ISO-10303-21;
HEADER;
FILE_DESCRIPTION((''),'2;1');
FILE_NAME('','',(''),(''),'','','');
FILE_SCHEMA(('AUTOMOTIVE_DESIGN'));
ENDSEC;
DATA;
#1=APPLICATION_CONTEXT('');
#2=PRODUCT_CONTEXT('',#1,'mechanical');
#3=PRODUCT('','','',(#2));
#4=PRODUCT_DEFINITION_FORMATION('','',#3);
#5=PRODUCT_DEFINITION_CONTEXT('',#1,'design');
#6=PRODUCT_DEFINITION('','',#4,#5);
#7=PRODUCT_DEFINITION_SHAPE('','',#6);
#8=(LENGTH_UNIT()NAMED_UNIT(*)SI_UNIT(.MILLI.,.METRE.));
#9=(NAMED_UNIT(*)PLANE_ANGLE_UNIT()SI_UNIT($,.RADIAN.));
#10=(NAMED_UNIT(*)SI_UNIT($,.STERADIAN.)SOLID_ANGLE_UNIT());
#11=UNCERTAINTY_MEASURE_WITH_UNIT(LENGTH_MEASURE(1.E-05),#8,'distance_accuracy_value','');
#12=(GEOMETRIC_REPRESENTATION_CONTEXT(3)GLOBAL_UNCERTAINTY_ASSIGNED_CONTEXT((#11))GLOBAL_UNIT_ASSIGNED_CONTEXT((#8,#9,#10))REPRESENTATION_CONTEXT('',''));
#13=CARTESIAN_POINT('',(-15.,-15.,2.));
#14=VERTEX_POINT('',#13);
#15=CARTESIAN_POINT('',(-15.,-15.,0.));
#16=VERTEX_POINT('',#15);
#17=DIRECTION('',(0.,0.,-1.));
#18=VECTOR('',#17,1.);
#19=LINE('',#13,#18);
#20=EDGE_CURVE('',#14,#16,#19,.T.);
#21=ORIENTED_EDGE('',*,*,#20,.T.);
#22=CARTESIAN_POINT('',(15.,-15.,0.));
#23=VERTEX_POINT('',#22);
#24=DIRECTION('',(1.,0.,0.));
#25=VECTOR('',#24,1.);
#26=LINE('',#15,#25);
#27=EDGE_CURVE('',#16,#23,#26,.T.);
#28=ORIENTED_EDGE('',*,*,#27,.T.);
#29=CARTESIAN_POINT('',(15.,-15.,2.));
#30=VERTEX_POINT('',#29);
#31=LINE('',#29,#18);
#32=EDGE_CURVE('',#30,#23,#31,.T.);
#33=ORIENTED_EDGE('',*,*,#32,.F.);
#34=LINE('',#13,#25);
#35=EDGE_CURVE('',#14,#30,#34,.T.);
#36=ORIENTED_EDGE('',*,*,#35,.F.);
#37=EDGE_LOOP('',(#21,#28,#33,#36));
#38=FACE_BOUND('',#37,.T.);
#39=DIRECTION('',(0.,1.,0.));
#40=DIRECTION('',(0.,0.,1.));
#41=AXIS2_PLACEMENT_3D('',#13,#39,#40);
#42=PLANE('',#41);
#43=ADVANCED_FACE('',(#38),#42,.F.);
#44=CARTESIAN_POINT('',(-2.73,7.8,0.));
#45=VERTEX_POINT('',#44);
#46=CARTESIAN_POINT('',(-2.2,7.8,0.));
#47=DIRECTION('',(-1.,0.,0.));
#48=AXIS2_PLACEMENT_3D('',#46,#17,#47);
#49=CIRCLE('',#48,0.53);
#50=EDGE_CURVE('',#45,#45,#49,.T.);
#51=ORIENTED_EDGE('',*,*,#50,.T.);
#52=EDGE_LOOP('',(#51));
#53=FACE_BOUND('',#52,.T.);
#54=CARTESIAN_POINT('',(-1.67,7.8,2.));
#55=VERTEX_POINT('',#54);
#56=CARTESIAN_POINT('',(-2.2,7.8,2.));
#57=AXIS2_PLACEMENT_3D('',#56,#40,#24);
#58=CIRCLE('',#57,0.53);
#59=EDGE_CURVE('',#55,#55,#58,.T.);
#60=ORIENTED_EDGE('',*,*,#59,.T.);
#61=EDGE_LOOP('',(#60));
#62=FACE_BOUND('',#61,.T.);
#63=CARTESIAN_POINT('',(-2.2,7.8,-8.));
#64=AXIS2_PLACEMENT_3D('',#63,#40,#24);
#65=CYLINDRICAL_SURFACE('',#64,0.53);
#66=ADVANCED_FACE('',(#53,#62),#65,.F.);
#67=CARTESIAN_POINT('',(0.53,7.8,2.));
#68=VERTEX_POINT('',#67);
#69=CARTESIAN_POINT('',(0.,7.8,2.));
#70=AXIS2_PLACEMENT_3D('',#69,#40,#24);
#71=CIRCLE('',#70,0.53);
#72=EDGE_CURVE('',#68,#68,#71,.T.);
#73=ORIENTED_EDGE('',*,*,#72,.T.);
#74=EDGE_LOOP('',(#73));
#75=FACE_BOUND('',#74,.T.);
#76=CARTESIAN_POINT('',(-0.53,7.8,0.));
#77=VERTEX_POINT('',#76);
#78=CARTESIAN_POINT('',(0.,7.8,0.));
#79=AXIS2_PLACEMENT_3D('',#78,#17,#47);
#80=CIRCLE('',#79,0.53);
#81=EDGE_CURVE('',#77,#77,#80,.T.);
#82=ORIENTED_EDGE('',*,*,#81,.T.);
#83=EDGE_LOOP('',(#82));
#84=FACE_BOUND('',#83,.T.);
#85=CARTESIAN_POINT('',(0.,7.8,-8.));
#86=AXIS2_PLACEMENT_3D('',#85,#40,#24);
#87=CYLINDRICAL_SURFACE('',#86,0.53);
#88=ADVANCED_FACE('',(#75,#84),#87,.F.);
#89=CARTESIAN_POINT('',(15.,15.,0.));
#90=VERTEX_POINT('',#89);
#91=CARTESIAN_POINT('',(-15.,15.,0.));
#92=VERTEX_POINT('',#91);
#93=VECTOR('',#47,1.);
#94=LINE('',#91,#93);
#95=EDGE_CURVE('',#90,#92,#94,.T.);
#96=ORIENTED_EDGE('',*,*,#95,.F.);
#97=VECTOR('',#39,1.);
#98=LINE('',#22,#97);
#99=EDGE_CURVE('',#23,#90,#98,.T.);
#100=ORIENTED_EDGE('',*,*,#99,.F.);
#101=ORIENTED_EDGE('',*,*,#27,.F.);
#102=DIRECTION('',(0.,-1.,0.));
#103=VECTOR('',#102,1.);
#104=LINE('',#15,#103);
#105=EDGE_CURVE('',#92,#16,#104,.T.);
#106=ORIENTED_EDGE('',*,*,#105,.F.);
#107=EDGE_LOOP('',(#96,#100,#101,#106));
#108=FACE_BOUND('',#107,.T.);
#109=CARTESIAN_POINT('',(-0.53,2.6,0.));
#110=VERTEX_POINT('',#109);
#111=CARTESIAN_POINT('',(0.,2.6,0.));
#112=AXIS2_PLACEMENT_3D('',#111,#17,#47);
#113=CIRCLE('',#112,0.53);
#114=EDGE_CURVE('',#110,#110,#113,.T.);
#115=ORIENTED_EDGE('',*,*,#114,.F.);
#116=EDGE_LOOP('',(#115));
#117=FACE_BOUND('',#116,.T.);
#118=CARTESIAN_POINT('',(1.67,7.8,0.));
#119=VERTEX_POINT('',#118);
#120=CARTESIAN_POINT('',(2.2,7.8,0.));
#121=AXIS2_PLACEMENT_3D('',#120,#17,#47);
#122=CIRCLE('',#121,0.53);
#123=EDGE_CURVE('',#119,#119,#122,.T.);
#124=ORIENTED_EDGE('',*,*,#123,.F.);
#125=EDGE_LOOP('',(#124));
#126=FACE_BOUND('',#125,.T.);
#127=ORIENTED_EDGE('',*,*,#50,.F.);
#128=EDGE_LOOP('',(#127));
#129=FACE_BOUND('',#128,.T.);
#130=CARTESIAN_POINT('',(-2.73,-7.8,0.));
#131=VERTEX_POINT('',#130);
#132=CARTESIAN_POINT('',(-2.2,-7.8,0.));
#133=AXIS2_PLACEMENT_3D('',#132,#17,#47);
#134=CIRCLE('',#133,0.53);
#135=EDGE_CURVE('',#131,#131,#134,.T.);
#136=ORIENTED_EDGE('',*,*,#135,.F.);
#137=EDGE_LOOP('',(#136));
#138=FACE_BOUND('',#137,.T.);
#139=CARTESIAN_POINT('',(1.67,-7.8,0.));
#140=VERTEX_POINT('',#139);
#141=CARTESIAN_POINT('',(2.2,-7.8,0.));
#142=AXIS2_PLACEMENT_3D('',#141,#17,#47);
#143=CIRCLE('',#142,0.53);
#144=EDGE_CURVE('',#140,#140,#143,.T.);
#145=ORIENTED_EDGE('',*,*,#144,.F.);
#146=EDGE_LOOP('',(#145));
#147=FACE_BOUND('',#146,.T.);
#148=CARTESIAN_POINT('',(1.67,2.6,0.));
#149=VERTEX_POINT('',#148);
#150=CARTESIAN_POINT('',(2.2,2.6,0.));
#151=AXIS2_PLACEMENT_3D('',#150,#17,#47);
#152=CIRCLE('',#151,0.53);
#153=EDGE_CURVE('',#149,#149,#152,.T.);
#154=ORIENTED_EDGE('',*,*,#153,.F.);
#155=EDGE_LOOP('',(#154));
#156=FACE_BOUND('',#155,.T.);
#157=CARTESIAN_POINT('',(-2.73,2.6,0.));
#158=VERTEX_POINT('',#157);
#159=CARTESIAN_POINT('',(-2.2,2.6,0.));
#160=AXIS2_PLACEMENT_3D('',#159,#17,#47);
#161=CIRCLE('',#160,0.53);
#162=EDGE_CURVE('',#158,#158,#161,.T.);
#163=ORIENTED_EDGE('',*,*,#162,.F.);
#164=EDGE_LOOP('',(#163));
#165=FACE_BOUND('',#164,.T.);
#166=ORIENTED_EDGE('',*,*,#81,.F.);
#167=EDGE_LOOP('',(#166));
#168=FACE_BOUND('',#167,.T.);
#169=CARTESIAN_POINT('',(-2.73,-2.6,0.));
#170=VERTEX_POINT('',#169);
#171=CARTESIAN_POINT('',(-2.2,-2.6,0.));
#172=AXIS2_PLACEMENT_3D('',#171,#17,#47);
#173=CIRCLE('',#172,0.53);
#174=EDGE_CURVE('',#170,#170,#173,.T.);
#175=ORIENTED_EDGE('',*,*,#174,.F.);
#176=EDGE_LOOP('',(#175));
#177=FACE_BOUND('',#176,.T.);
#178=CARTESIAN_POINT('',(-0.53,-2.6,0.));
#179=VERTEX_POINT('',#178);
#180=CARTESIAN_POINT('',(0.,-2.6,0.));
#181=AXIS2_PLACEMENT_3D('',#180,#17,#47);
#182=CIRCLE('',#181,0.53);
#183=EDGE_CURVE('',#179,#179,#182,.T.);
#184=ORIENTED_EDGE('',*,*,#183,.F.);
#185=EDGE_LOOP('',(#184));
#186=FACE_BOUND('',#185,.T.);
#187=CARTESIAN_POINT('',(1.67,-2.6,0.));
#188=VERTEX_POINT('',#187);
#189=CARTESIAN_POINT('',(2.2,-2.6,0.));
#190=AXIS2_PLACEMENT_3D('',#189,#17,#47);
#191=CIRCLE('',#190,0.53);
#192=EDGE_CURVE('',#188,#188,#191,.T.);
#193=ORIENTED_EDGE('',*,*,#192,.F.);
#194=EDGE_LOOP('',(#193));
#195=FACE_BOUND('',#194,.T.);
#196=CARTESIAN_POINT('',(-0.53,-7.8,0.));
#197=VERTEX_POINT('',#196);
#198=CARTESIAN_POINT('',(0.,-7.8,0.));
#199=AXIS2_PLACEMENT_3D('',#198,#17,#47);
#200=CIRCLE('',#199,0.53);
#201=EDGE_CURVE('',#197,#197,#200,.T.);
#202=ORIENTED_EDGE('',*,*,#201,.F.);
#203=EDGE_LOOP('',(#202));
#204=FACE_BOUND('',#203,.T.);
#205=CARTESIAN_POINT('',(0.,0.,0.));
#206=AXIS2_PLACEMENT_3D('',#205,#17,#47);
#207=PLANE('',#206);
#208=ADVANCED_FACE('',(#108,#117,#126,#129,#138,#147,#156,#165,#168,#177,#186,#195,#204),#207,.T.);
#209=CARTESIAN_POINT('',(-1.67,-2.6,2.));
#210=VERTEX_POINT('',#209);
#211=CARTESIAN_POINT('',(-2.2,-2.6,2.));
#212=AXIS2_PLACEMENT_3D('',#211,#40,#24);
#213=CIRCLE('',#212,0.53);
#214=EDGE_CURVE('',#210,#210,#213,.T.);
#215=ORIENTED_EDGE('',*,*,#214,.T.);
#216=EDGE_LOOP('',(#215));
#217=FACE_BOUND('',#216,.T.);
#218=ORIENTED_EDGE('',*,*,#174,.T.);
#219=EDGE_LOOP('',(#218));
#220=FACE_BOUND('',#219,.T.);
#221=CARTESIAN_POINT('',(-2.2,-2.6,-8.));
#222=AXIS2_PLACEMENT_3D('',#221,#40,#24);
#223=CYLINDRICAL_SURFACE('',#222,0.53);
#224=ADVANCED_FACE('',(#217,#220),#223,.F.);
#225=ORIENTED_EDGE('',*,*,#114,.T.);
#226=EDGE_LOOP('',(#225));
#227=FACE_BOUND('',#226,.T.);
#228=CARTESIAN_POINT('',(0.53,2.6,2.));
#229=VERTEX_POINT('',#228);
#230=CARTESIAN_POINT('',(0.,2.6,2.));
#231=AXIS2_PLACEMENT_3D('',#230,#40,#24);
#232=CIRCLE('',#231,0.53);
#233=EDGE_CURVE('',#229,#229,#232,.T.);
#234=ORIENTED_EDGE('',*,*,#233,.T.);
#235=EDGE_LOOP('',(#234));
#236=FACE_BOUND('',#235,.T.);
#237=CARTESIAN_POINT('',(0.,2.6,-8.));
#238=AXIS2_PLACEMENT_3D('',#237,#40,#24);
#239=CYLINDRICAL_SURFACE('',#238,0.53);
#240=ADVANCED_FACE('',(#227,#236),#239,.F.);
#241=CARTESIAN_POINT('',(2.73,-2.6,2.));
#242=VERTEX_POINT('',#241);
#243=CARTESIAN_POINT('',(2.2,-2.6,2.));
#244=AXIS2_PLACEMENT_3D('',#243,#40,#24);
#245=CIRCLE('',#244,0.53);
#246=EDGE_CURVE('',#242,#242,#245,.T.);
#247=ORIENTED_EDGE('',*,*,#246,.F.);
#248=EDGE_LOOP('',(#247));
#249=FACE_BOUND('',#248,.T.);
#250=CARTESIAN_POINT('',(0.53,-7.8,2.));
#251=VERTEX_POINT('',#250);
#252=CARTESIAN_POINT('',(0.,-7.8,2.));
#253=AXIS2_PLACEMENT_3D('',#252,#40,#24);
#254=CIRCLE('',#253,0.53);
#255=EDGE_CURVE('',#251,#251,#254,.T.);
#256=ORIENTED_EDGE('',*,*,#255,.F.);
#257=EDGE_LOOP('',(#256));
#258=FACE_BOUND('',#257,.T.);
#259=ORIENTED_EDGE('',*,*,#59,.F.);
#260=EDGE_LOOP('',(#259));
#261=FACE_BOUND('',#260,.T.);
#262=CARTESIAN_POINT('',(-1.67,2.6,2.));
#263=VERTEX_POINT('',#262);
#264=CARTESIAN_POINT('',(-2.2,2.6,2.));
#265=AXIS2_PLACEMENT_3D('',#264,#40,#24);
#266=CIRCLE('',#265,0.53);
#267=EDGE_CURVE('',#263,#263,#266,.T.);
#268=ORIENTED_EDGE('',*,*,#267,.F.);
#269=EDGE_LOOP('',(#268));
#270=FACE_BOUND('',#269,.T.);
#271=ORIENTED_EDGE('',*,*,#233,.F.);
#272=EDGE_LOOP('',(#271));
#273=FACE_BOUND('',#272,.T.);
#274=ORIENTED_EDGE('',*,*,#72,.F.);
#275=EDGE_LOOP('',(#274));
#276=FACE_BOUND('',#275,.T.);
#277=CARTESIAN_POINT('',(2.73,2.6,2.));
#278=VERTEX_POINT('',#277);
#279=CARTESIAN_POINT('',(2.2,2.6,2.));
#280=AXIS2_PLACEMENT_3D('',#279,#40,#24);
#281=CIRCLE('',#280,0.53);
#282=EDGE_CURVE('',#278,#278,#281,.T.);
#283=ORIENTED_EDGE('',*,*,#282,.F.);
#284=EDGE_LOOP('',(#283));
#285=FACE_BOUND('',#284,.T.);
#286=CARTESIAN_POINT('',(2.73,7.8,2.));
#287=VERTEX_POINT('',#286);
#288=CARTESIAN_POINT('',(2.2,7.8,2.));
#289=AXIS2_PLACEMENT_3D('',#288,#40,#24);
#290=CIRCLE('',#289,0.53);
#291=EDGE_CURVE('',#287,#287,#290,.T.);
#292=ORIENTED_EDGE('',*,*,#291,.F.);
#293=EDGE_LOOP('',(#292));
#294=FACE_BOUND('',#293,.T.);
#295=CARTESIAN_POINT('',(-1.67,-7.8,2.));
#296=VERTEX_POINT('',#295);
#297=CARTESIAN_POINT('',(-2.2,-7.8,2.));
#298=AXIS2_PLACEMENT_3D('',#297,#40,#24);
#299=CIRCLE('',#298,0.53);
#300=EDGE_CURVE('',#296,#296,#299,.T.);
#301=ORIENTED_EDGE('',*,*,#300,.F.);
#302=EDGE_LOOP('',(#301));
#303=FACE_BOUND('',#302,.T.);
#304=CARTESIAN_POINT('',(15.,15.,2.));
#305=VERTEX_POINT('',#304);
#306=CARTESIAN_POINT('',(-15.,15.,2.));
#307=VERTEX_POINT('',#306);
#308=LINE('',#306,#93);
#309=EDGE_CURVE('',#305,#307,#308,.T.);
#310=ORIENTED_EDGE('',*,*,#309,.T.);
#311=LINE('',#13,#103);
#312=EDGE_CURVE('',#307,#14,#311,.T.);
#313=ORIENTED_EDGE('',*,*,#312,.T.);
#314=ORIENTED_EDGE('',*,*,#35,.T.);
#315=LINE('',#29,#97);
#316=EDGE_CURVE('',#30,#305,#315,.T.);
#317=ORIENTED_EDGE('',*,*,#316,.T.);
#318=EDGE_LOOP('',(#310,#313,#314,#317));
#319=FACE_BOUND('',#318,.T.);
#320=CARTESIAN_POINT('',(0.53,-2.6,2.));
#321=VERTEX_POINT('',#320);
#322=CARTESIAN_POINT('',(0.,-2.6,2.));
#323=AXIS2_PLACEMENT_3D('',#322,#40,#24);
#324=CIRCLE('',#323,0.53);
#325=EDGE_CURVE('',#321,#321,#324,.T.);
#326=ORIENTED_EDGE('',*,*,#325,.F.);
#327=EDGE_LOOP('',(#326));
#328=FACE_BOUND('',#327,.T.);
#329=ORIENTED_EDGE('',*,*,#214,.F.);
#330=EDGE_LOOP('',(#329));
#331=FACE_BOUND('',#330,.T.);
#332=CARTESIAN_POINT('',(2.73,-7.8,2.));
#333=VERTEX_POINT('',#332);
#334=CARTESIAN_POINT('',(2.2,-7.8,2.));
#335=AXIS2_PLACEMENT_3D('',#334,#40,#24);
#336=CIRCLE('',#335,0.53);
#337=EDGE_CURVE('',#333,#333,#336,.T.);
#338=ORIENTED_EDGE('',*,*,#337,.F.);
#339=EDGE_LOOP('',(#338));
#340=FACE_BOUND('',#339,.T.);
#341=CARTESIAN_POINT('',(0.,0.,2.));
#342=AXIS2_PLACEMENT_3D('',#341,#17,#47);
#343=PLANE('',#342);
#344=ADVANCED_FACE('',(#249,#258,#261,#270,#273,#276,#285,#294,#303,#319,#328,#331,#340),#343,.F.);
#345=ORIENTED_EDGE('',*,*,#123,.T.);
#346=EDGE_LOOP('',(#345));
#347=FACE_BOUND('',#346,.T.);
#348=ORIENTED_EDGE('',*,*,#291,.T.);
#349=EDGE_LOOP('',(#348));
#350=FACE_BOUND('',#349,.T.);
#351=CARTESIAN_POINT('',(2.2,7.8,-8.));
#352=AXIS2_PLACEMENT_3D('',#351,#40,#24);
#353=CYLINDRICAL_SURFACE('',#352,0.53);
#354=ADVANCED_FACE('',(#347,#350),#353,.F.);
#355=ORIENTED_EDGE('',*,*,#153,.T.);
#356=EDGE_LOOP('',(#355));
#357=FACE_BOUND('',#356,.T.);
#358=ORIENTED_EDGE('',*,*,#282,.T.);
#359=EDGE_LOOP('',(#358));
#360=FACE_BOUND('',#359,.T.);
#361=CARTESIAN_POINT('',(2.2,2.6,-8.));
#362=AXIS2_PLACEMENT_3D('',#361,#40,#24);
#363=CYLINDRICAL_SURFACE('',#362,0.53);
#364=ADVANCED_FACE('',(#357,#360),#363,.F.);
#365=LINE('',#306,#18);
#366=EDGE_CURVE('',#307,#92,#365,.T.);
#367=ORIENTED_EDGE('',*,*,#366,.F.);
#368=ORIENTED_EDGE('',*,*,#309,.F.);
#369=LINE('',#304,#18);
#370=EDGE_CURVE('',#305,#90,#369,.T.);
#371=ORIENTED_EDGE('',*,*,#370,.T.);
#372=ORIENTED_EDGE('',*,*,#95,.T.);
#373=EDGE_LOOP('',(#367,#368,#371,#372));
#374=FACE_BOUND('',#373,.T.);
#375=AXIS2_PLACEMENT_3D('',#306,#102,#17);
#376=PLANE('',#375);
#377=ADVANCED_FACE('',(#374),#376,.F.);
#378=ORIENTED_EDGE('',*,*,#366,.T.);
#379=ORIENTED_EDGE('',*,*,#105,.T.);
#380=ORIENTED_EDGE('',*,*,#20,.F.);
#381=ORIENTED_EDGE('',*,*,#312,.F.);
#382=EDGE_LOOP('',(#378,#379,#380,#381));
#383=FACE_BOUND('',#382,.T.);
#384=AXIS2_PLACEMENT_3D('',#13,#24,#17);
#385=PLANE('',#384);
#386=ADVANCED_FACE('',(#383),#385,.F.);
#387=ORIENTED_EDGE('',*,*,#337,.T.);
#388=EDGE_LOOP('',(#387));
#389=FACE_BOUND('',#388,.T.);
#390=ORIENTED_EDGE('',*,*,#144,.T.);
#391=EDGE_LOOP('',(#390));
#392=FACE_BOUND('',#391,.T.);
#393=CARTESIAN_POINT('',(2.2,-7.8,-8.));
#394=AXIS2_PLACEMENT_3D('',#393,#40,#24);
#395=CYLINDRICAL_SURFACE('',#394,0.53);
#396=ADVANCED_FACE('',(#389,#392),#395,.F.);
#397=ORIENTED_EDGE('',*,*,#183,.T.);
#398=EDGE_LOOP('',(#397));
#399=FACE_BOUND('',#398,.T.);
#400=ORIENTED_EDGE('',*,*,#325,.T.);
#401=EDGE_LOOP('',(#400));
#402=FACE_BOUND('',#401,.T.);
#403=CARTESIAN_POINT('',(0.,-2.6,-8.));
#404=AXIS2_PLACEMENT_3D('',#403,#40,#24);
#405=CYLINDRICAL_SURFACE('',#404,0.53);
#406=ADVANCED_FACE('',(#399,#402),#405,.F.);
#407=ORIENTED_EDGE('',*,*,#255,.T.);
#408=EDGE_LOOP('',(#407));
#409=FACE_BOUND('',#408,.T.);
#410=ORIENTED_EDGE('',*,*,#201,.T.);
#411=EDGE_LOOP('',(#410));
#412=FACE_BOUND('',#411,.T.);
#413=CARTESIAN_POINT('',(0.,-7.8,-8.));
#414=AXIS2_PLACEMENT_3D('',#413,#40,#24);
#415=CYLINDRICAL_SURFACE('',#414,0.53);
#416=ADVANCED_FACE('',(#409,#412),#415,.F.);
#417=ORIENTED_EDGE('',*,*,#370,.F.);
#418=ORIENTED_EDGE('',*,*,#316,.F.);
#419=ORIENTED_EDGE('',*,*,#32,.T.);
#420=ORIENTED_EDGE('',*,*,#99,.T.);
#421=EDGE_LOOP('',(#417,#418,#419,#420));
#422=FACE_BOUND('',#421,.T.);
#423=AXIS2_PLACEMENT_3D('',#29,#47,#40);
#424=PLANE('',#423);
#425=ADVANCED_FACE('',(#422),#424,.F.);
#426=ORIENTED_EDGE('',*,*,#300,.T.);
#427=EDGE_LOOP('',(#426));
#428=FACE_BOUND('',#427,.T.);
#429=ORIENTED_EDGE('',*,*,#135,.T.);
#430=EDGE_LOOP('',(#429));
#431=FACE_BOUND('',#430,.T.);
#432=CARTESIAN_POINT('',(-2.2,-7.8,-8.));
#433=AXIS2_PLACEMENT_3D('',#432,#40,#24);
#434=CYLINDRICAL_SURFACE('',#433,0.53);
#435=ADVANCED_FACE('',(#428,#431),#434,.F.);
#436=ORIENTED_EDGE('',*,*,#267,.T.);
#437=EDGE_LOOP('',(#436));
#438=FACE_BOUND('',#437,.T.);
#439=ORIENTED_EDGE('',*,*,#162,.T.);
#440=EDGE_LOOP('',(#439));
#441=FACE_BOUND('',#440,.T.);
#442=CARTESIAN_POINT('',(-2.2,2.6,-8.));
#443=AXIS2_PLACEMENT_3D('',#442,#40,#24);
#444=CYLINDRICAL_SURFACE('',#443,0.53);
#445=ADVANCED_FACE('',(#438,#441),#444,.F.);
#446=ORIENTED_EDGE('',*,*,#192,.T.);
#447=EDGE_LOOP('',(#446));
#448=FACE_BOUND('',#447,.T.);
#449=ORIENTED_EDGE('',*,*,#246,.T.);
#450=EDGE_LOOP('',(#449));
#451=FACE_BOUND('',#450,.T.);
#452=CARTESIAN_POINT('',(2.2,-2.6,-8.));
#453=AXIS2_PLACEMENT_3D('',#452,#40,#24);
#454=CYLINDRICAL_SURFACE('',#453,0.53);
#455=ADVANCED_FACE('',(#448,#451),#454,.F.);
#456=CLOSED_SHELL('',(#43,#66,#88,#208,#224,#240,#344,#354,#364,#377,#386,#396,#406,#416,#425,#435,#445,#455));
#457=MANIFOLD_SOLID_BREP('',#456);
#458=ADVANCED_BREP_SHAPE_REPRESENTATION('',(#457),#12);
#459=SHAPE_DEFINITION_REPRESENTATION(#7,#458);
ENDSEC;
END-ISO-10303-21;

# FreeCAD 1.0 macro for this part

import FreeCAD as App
import Part
import Sketcher

V = App.Vector
Q = App.Units.Quantity

doc = App.newDocument("Part")
params = doc.addObject("Spreadsheet::Sheet", "Params")
for row, (alias, value) in enumerate([
    ("sketch1_width", "30 mm"),
    ("pad1_length", "2 mm"),
    ("sketch2_diameter", "1.06 mm"),
    ("pocket1_length", "10 mm"),
], start=1):
    params.set(f"A{row}", alias)
    params.set(f"B{row}", "=" + value)
    params.setAlias(f"B{row}", alias)

body = doc.addObject("PartDesign::Body", "Body")

# Sketch on XY plane
sketch1 = doc.addObject("Sketcher::SketchObject", "Sketch")
body.addObject(sketch1)
sketch1.AttachmentSupport = (doc.XY_Plane, [""])
sketch1.MapMode = "FlatFace"
sketch1.addGeometry([
    Part.LineSegment(V(-15, 15, 0), V(-15, -15, 0)),
    Part.LineSegment(V(-15, -15, 0), V(15, -15, 0)),
    Part.LineSegment(V(15, -15, 0), V(15, 15, 0)),
    Part.LineSegment(V(15, 15, 0), V(-15, 15, 0)),
], False)
sketch1.addConstraint([
    Sketcher.Constraint("Coincident", 0, 2, 1, 1),
    Sketcher.Constraint("Coincident", 1, 2, 2, 1),
    Sketcher.Constraint("Coincident", 2, 2, 3, 1),
    Sketcher.Constraint("Coincident", 3, 2, 0, 1),
    Sketcher.Constraint("Vertical", 0),
    Sketcher.Constraint("Horizontal", 1),
    Sketcher.Constraint("Vertical", 2),
    Sketcher.Constraint("Horizontal", 3),
    Sketcher.Constraint("Symmetric", 0, 2, 2, 2, -1, 1),
    Sketcher.Constraint("Equal", 3, 0),
    Sketcher.Constraint("DistanceX", 1, 1, 1, 2, Q("30 mm")),
])
sketch1.setExpression("Constraints[10]", "Params.sketch1_width")
pad1 = doc.addObject("PartDesign::Pad", "Pad")
body.addObject(pad1)
pad1.Profile = sketch1
pad1.setExpression("Length", "Params.pad1_length")

# Sketch on XY plane
sketch2 = doc.addObject("Sketcher::SketchObject", "Sketch001")
body.addObject(sketch2)
sketch2.AttachmentSupport = (doc.XY_Plane, [""])
sketch2.MapMode = "FlatFace"
sketch2.AttachmentOffset = App.Placement(V(0, 0, 2), App.Rotation())
sketch2.addGeometry([
    Part.Circle(V(-2.2, -7.8, 0), V(0, 0, 1), 0.5),  # 0
    Part.Circle(V(-2.2, -2.6, 0), V(0, 0, 1), 0.5),  # 1
    Part.Circle(V(-2.2, 2.6, 0), V(0, 0, 1), 0.5),  # 2
    Part.Circle(V(-2.2, 7.8, 0), V(0, 0, 1), 0.5),  # 3
    Part.Circle(V(0, -7.8, 0), V(0, 0, 1), 0.5),  # 4
    Part.Circle(V(0, -2.6, 0), V(0, 0, 1), 0.5),  # 5
    Part.Circle(V(0, 2.6, 0), V(0, 0, 1), 0.5),  # 6
    Part.Circle(V(0, 7.8, 0), V(0, 0, 1), 0.5),  # 7
    Part.Circle(V(2.2, -7.8, 0), V(0, 0, 1), 0.5),  # 8
    Part.Circle(V(2.2, -2.6, 0), V(0, 0, 1), 0.5),  # 9
    Part.Circle(V(2.2, 2.6, 0), V(0, 0, 1), 0.5),  # 10
    Part.Circle(V(2.2, 7.8, 0), V(0, 0, 1), 0.5),  # 11
], False)
sketch2.addConstraint([
    Sketcher.Constraint("Equal", 0, 1),
    Sketcher.Constraint("Equal", 1, 2),
    Sketcher.Constraint("Equal", 2, 3),
    Sketcher.Constraint("Equal", 3, 4),
    Sketcher.Constraint("Equal", 4, 5),
    Sketcher.Constraint("Equal", 5, 6),
    Sketcher.Constraint("Equal", 6, 7),
    Sketcher.Constraint("Equal", 7, 8),
    Sketcher.Constraint("Equal", 8, 9),
    Sketcher.Constraint("Equal", 9, 10),
    Sketcher.Constraint("Equal", 10, 11),
    Sketcher.Constraint("Symmetric", 5, 3, 6, 3, -1, 1),
    Sketcher.Constraint("Symmetric", 4, 3, 7, 3, -1, 1),
    Sketcher.Constraint("Symmetric", 3, 3, 8, 3, -1, 1),
    Sketcher.Constraint("Symmetric", 2, 3, 9, 3, -1, 1),
    Sketcher.Constraint("Symmetric", 1, 3, 10, 3, -1, 1),
    Sketcher.Constraint("Symmetric", 0, 3, 11, 3, -1, 1),
    Sketcher.Constraint("Symmetric", 0, 3, 8, 3, -2),
    Sketcher.Constraint("Symmetric", 1, 3, 9, 3, -2),
    Sketcher.Constraint("PointOnObject", 4, 3, -2),
    Sketcher.Constraint("PointOnObject", 5, 3, -2),
    Sketcher.Constraint("Horizontal", 0, 3, 4, 3),
    Sketcher.Constraint("Horizontal", 1, 3, 5, 3),
    Sketcher.Constraint("Vertical", 0, 3, 1, 3),
    Sketcher.Constraint("Diameter", 0, Q("1.06 mm")),
    Sketcher.Constraint("DistanceX", 0, 3, -1, 1, Q("2.2 mm")),
    Sketcher.Constraint("DistanceY", 0, 3, -1, 1, Q("7.8 mm")),
    Sketcher.Constraint("DistanceY", 1, 3, -1, 1, Q("2.6 mm")),
])
sketch2.setExpression("Constraints[24]", "Params.sketch2_diameter")
pocket1 = doc.addObject("PartDesign::Pocket", "Pocket")
body.addObject(pocket1)
pocket1.Profile = sketch2
pocket1.setExpression("Length", "Params.pocket1_length")

doc.recompute()
